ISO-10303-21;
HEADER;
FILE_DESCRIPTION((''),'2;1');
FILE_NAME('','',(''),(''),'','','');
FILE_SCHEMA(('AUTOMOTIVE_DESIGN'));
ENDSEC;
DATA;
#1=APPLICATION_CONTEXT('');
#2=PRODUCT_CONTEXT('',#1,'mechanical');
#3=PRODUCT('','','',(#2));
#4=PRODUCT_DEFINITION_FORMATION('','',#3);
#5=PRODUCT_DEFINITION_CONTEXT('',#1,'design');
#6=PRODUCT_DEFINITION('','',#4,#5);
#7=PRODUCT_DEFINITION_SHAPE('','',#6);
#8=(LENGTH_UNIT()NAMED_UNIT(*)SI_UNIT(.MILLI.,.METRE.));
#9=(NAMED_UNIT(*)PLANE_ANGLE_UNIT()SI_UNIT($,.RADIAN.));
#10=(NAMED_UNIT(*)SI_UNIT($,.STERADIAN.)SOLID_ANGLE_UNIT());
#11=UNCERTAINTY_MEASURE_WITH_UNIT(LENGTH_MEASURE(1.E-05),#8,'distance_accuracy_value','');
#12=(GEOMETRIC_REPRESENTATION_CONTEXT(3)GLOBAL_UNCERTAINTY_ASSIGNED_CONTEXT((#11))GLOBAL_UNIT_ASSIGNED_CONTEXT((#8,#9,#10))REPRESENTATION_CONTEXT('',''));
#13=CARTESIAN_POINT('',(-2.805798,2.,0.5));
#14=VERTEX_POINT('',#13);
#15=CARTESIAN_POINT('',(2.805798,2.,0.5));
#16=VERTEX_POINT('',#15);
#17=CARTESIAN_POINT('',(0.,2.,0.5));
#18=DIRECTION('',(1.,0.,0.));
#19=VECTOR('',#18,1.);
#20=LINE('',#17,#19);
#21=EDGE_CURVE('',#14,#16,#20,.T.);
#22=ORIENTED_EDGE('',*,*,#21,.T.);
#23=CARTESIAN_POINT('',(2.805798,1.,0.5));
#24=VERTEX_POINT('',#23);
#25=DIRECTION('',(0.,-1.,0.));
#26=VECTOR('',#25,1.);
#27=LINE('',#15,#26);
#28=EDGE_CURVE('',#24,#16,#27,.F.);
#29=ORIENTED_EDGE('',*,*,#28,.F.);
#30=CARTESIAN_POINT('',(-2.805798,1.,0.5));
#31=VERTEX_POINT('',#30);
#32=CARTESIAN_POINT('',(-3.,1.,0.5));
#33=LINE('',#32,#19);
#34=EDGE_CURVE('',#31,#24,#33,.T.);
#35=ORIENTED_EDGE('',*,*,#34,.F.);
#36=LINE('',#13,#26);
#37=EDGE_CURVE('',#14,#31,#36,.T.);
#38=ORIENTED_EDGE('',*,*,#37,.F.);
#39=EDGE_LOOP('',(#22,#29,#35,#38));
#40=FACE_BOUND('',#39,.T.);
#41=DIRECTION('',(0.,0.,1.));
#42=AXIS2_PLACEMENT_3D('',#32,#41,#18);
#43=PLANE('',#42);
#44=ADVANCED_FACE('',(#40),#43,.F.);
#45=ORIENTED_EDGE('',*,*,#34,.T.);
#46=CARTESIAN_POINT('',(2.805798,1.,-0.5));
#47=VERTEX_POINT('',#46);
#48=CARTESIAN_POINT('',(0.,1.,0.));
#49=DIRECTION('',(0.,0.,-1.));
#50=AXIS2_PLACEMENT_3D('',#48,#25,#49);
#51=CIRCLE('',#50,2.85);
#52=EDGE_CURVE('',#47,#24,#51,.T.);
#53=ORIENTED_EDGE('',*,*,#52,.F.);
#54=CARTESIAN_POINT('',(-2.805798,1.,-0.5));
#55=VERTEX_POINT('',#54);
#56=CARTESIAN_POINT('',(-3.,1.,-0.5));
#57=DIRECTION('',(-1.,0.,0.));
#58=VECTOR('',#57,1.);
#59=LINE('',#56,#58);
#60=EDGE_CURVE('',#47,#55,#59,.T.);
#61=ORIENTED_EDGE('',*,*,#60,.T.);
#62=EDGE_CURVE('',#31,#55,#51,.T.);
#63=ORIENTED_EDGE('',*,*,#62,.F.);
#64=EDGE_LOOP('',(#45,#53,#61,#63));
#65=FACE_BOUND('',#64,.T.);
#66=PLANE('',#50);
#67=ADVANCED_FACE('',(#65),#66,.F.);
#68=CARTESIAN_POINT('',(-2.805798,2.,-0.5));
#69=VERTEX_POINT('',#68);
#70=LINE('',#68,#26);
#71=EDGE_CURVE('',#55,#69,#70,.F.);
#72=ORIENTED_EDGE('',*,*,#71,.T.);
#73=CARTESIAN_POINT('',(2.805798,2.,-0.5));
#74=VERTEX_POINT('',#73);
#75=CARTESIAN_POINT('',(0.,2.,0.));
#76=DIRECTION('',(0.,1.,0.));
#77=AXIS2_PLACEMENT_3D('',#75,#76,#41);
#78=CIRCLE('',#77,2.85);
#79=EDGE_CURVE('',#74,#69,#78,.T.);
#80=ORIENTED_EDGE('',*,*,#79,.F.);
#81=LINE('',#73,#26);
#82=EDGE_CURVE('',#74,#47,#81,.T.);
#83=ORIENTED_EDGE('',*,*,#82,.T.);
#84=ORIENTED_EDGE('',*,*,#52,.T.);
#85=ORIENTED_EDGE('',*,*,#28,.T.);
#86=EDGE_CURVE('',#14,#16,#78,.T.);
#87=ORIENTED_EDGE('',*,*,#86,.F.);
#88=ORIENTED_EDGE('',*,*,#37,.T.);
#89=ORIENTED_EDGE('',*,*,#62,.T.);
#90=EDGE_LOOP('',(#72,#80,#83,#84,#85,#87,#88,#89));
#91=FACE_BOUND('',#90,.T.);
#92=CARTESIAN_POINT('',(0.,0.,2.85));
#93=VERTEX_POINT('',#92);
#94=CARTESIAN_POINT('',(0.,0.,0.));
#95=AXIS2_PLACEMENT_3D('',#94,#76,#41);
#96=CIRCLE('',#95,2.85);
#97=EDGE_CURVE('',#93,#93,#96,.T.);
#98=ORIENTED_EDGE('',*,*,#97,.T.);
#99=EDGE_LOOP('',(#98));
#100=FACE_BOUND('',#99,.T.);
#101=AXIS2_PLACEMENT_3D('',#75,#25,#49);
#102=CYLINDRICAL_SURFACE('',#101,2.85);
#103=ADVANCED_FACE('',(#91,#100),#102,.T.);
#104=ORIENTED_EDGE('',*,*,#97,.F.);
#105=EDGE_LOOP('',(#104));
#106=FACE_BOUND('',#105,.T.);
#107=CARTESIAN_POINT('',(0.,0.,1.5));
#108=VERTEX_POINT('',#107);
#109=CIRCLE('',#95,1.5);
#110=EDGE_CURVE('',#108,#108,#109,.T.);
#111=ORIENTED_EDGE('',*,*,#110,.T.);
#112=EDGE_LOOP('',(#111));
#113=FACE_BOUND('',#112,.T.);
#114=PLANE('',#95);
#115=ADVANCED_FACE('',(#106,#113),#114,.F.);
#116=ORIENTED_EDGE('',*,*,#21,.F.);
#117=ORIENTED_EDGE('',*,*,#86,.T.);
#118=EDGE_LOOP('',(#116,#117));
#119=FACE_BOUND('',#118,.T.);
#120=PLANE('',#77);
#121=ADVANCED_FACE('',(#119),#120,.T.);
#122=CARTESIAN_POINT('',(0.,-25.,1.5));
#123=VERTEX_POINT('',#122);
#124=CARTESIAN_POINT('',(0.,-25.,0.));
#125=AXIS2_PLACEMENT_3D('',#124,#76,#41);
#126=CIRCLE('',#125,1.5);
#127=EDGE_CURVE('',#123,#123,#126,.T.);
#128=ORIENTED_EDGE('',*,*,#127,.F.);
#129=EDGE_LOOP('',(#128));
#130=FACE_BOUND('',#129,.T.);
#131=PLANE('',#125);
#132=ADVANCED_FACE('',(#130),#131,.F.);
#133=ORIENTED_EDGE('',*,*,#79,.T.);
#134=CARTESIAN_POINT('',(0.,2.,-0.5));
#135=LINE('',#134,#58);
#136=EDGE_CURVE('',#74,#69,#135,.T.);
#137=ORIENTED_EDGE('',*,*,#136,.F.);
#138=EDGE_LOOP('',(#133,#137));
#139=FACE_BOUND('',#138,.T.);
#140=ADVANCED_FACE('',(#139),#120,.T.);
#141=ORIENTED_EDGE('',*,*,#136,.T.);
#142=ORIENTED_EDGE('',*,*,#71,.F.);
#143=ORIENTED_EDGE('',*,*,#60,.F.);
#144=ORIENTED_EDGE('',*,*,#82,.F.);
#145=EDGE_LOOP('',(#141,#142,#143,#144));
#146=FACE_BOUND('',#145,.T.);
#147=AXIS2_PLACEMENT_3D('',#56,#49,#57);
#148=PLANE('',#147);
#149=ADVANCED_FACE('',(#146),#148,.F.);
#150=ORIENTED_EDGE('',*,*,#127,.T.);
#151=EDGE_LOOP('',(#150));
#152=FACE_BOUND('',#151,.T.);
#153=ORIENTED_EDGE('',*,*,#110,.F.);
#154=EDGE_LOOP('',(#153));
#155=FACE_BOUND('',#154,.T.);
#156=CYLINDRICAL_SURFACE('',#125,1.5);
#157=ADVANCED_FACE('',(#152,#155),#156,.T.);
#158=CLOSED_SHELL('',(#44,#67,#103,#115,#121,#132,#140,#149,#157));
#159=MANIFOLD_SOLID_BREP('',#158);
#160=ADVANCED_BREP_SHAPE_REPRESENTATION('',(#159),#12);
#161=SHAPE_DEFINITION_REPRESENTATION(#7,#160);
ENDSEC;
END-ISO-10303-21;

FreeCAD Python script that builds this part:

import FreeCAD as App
import Part
import Sketcher


def add_polygon(sketch, points):
    """Adds a closed chain of lines whose ends are joined by coincident constraints."""
    first, n = sketch.GeometryCount, len(points)
    for a, b in zip(points, points[1:] + points[:1]):
        sketch.addGeometry(Part.LineSegment(App.Vector(*a, 0), App.Vector(*b, 0)), False)
    for i in range(n):
        sketch.addConstraint(Sketcher.Constraint("Coincident", first + i, 2, first + (i + 1) % n, 1))

doc = App.newDocument("Part")
body = doc.addObject("PartDesign::Body", "Body")

# Sketch on XZ plane
sketch1 = doc.addObject("Sketcher::SketchObject", "Sketch")
body.addObject(sketch1)
sketch1.AttachmentSupport = (doc.XZ_Plane, [""])
sketch1.MapMode = "FlatFace"
sketch1.addGeometry(Part.Circle(App.Vector(0, 0, 0), App.Vector(0, 0, 1), 2.9), False)
sketch1.addConstraint([
    Sketcher.Constraint("Coincident", 0, 3, -1, 1),
    Sketcher.Constraint("Diameter", 0, 5.7),
])
pad1 = doc.addObject("PartDesign::Pad", "Pad")
body.addObject(pad1)
pad1.Profile = sketch1
pad1.Length = 2
pad1.Reversed = True

# Sketch on XZ plane
sketch2 = doc.addObject("Sketcher::SketchObject", "Sketch001")
body.addObject(sketch2)
sketch2.AttachmentSupport = (doc.XZ_Plane, [""])
sketch2.MapMode = "FlatFace"
sketch2.addGeometry(Part.Circle(App.Vector(0, 0, 0), App.Vector(0, 0, 1), 1.5), False)
sketch2.addConstraint([
    Sketcher.Constraint("Coincident", 0, 3, -1, 1),
    Sketcher.Constraint("Diameter", 0, 3.0),
])
pad2 = doc.addObject("PartDesign::Pad", "Pad001")
body.addObject(pad2)
pad2.Profile = sketch2
pad2.Length = 25

# Sketch on XZ plane
sketch3 = doc.addObject("Sketcher::SketchObject", "Sketch002")
body.addObject(sketch3)
sketch3.AttachmentSupport = (doc.XZ_Plane, [""])
sketch3.MapMode = "FlatFace"
sketch3.AttachmentOffset = App.Placement(App.Vector(0, 0, -2), App.Rotation())
add_polygon(sketch3, [(-3, -0.5), (-3, 0.5), (3, 0.5), (3, -0.5)])  # lines 0-3
sketch3.addConstraint([
    Sketcher.Constraint("Vertical", 0),
    Sketcher.Constraint("Horizontal", 1),
    Sketcher.Constraint("Vertical", 2),
    Sketcher.Constraint("Horizontal", 3),
    Sketcher.Constraint("Symmetric", 0, 2, 2, 2, -1, 1),
    Sketcher.Constraint("DistanceX", 1, 1, 1, 2, 6.0),
    Sketcher.Constraint("DistanceY", 0, 1, 0, 2, 1.0),
])
pocket1 = doc.addObject("PartDesign::Pocket", "Pocket")
body.addObject(pocket1)
pocket1.Profile = sketch3
pocket1.Length = 1
pocket1.Reversed = True

doc.recompute()
